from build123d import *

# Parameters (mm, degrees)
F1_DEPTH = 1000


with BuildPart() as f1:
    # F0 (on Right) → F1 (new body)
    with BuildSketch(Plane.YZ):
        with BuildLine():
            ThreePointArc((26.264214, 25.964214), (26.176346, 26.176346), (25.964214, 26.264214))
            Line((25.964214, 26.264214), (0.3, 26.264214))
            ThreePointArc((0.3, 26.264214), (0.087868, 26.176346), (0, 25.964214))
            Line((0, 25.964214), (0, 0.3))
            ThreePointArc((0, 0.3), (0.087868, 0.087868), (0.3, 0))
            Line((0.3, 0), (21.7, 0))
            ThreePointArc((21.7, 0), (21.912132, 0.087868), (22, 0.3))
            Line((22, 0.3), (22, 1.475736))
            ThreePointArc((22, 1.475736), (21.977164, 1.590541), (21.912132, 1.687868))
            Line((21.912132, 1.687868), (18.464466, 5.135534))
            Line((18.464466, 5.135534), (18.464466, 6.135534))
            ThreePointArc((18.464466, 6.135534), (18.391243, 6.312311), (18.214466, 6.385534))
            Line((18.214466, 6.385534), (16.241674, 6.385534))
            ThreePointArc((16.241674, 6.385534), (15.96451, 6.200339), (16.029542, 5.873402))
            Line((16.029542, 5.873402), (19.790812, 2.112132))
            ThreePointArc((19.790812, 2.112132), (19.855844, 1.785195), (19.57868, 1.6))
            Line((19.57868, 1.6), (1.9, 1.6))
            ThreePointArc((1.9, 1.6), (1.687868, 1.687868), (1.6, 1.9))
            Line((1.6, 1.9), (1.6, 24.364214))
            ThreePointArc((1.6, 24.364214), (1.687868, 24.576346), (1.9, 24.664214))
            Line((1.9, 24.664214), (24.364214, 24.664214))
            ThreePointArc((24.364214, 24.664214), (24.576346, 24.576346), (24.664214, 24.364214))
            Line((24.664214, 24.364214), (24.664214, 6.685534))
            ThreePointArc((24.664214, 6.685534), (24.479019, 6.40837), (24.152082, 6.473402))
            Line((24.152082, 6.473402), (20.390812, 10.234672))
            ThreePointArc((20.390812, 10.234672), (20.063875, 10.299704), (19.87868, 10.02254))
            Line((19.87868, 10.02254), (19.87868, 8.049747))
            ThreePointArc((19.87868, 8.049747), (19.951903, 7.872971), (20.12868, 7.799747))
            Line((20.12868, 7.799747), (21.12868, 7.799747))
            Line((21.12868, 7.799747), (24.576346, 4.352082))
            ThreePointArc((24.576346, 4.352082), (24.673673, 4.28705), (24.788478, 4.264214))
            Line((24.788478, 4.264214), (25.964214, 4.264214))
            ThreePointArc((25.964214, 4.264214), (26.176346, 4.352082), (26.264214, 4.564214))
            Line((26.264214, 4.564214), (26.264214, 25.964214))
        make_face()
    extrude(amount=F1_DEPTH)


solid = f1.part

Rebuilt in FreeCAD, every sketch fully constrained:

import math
import FreeCAD as App
import Part
import Sketcher

V = App.Vector
Q = App.Units.Quantity

doc = App.newDocument("Part")
body = doc.addObject("PartDesign::Body", "Body")

sketch1 = body.newObject("Sketcher::SketchObject", "Sketch")
sketch1.AttachmentSupport = (doc.getObject("YZ_Plane"), [""])
sketch1.MapMode = "FlatFace"
sketch1.addGeometry(Part.ArcOfCircle(Part.Circle(V(25.96, 25.96, 0), V(0, 0, 1), 0.3), math.radians(0), math.radians(90)), False)
sketch1.addGeometry(Part.LineSegment(V(25.96, 26.26, 0), V(0.3, 26.26, 0)), False)
sketch1.addGeometry(Part.ArcOfCircle(Part.Circle(V(0.3, 25.96, 0), V(0, 0, 1), 0.3), math.radians(90), math.radians(180)), False)
sketch1.addGeometry(Part.LineSegment(V(0, 25.96, 0), V(0, 0.3, 0)), False)
sketch1.addGeometry(Part.ArcOfCircle(Part.Circle(V(0.3, 0.3, 0), V(0, 0, 1), 0.3), math.radians(-180), math.radians(-90)), False)
sketch1.addGeometry(Part.LineSegment(V(0.3, 0, 0), V(21.7, 0, 0)), False)
sketch1.addGeometry(Part.ArcOfCircle(Part.Circle(V(21.7, 0.3, 0), V(0, 0, 1), 0.3), math.radians(-90), math.radians(0)), False)
sketch1.addGeometry(Part.LineSegment(V(22, 0.3, 0), V(22, 1.48, 0)), False)
sketch1.addGeometry(Part.ArcOfCircle(Part.Circle(V(21.7, 1.48, 0), V(0, 0, 1), 0.3), math.radians(0), math.radians(45)), False)
sketch1.addGeometry(Part.LineSegment(V(21.91, 1.69, 0), V(18.46, 5.14, 0)), False)
sketch1.addGeometry(Part.LineSegment(V(18.46, 5.14, 0), V(18.46, 6.14, 0)), False)
sketch1.addGeometry(Part.ArcOfCircle(Part.Circle(V(18.21, 6.14, 0), V(0, 0, 1), 0.25), math.radians(0), math.radians(90)), False)
sketch1.addGeometry(Part.LineSegment(V(18.21, 6.39, 0), V(16.24, 6.39, 0)), False)
sketch1.addGeometry(Part.ArcOfCircle(Part.Circle(V(16.24, 6.09, 0), V(0, 0, 1), 0.3), math.radians(90), math.radians(225)), False)
sketch1.addGeometry(Part.LineSegment(V(16.03, 5.87, 0), V(19.79, 2.11, 0)), False)
sketch1.addGeometry(Part.ArcOfCircle(Part.Circle(V(19.58, 1.9, 0), V(0, 0, 1), 0.3), math.radians(-90), math.radians(45)), False)
sketch1.addGeometry(Part.LineSegment(V(19.58, 1.6, 0), V(1.9, 1.6, 0)), False)
sketch1.addGeometry(Part.ArcOfCircle(Part.Circle(V(1.9, 1.9, 0), V(0, 0, 1), 0.3), math.radians(-180), math.radians(-90)), False)
sketch1.addGeometry(Part.LineSegment(V(1.6, 1.9, 0), V(1.6, 24.36, 0)), False)
sketch1.addGeometry(Part.ArcOfCircle(Part.Circle(V(1.9, 24.36, 0), V(0, 0, 1), 0.3), math.radians(90), math.radians(180)), False)
sketch1.addGeometry(Part.LineSegment(V(1.9, 24.66, 0), V(24.36, 24.66, 0)), False)
sketch1.addGeometry(Part.ArcOfCircle(Part.Circle(V(24.36, 24.36, 0), V(0, 0, 1), 0.3), math.radians(0), math.radians(90)), False)
sketch1.addGeometry(Part.LineSegment(V(24.66, 24.36, 0), V(24.66, 6.69, 0)), False)
sketch1.addGeometry(Part.ArcOfCircle(Part.Circle(V(24.36, 6.69, 0), V(0, 0, 1), 0.3), math.radians(-135), math.radians(0)), False)
sketch1.addGeometry(Part.LineSegment(V(24.15, 6.47, 0), V(20.39, 10.23, 0)), False)
sketch1.addGeometry(Part.ArcOfCircle(Part.Circle(V(20.18, 10.02, 0), V(0, 0, 1), 0.3), math.radians(45), math.radians(180)), False)
sketch1.addGeometry(Part.LineSegment(V(19.88, 10.02, 0), V(19.88, 8.05, 0)), False)
sketch1.addGeometry(Part.ArcOfCircle(Part.Circle(V(20.13, 8.05, 0), V(0, 0, 1), 0.25), math.radians(-180), math.radians(-90)), False)
sketch1.addGeometry(Part.LineSegment(V(20.13, 7.8, 0), V(21.13, 7.8, 0)), False)
sketch1.addGeometry(Part.LineSegment(V(21.13, 7.8, 0), V(24.58, 4.35, 0)), False)
sketch1.addGeometry(Part.ArcOfCircle(Part.Circle(V(24.79, 4.56, 0), V(0, 0, 1), 0.3), math.radians(-135), math.radians(-90)), False)
sketch1.addGeometry(Part.LineSegment(V(24.79, 4.26, 0), V(25.96, 4.26, 0)), False)
sketch1.addGeometry(Part.ArcOfCircle(Part.Circle(V(25.96, 4.56, 0), V(0, 0, 1), 0.3), math.radians(-90), math.radians(0)), False)
sketch1.addGeometry(Part.LineSegment(V(26.26, 4.56, 0), V(26.26, 25.96, 0)), False)
sketch1.addConstraint(Sketcher.Constraint("Tangent", 0, 2, 1, 1))
sketch1.addConstraint(Sketcher.Constraint("Tangent", 1, 2, 2, 1))
sketch1.addConstraint(Sketcher.Constraint("Tangent", 2, 2, 3, 1))
sketch1.addConstraint(Sketcher.Constraint("Tangent", 3, 2, 4, 1))
sketch1.addConstraint(Sketcher.Constraint("Tangent", 4, 2, 5, 1))
sketch1.addConstraint(Sketcher.Constraint("Tangent", 5, 2, 6, 1))
sketch1.addConstraint(Sketcher.Constraint("Tangent", 6, 2, 7, 1))
sketch1.addConstraint(Sketcher.Constraint("Coincident", 7, 2, 8, 1))
sketch1.addConstraint(Sketcher.Constraint("Coincident", 8, 2, 9, 1))
sketch1.addConstraint(Sketcher.Constraint("Coincident", 9, 2, 10, 1))
sketch1.addConstraint(Sketcher.Constraint("Coincident", 10, 2, 11, 1))
sketch1.addConstraint(Sketcher.Constraint("Coincident", 11, 2, 12, 1))
sketch1.addConstraint(Sketcher.Constraint("Tangent", 12, 2, 13, 1))
sketch1.addConstraint(Sketcher.Constraint("Tangent", 13, 2, 14, 1))
sketch1.addConstraint(Sketcher.Constraint("Tangent", 14, 2, 15, 2))
sketch1.addConstraint(Sketcher.Constraint("Tangent", 15, 1, 16, 1))
sketch1.addConstraint(Sketcher.Constraint("Tangent", 16, 2, 17, 2))
sketch1.addConstraint(Sketcher.Constraint("Tangent", 17, 1, 18, 1))
sketch1.addConstraint(Sketcher.Constraint("Tangent", 18, 2, 19, 2))
sketch1.addConstraint(Sketcher.Constraint("Tangent", 19, 1, 20, 1))
sketch1.addConstraint(Sketcher.Constraint("Tangent", 20, 2, 21, 2))
sketch1.addConstraint(Sketcher.Constraint("Tangent", 21, 1, 22, 1))
sketch1.addConstraint(Sketcher.Constraint("Tangent", 22, 2, 23, 2))
sketch1.addConstraint(Sketcher.Constraint("Tangent", 23, 1, 24, 1))
sketch1.addConstraint(Sketcher.Constraint("Tangent", 24, 2, 25, 1))
sketch1.addConstraint(Sketcher.Constraint("Tangent", 25, 2, 26, 1))
sketch1.addConstraint(Sketcher.Constraint("Coincident", 26, 2, 27, 1))
sketch1.addConstraint(Sketcher.Constraint("Coincident", 27, 2, 28, 1))
sketch1.addConstraint(Sketcher.Constraint("Coincident", 28, 2, 29, 1))
sketch1.addConstraint(Sketcher.Constraint("Coincident", 29, 2, 30, 1))
sketch1.addConstraint(Sketcher.Constraint("Coincident", 30, 2, 31, 1))
sketch1.addConstraint(Sketcher.Constraint("Tangent", 31, 2, 32, 1))
sketch1.addConstraint(Sketcher.Constraint("Tangent", 32, 2, 33, 1))
sketch1.addConstraint(Sketcher.Constraint("Tangent", 33, 2, 0, 1))
sketch1.addConstraint(Sketcher.Constraint("Horizontal", 1))
sketch1.addConstraint(Sketcher.Constraint("Vertical", 3))
sketch1.addConstraint(Sketcher.Constraint("Horizontal", 5))
sketch1.addConstraint(Sketcher.Constraint("Vertical", 7))
sketch1.addConstraint(Sketcher.Constraint("Vertical", 10))
sketch1.addConstraint(Sketcher.Constraint("Horizontal", 12))
sketch1.addConstraint(Sketcher.Constraint("Horizontal", 16))
sketch1.addConstraint(Sketcher.Constraint("Vertical", 18))
sketch1.addConstraint(Sketcher.Constraint("Horizontal", 20))
sketch1.addConstraint(Sketcher.Constraint("Vertical", 22))
sketch1.addConstraint(Sketcher.Constraint("Vertical", 26))
sketch1.addConstraint(Sketcher.Constraint("Horizontal", 28))
sketch1.addConstraint(Sketcher.Constraint("Horizontal", 31))
sketch1.addConstraint(Sketcher.Constraint("Vertical", 33))
sketch1.addConstraint(Sketcher.Constraint("Equal", 0, 2))
sketch1.addConstraint(Sketcher.Constraint("Equal", 2, 4))
sketch1.addConstraint(Sketcher.Constraint("Equal", 4, 6))
sketch1.addConstraint(Sketcher.Constraint("Equal", 6, 8))
sketch1.addConstraint(Sketcher.Constraint("Equal", 8, 13))
sketch1.addConstraint(Sketcher.Constraint("Equal", 13, 15))
sketch1.addConstraint(Sketcher.Constraint("Equal", 15, 17))
sketch1.addConstraint(Sketcher.Constraint("Equal", 17, 19))
sketch1.addConstraint(Sketcher.Constraint("Equal", 19, 21))
sketch1.addConstraint(Sketcher.Constraint("Equal", 21, 23))
sketch1.addConstraint(Sketcher.Constraint("Equal", 23, 25))
sketch1.addConstraint(Sketcher.Constraint("Equal", 11, 27))
sketch1.addConstraint(Sketcher.Constraint("Equal", 25, 30))
sketch1.addConstraint(Sketcher.Constraint("Equal", 30, 32))
sketch1.addConstraint(Sketcher.Constraint("PointOnObject", 2, 2, -2))
sketch1.addConstraint(Sketcher.Constraint("PointOnObject", 4, 2, -1))
sketch1.addConstraint(Sketcher.Constraint("Parallel", 9, 14))
sketch1.addConstraint(Sketcher.Constraint("Parallel", 14, 24))
sketch1.addConstraint(Sketcher.Constraint("Parallel", 24, 29))
sketch1.addConstraint(Sketcher.Constraint("Horizontal", 8, 3, 7, 2))
sketch1.addConstraint(Sketcher.Constraint("Horizontal", 11, 3, 10, 2))
sketch1.addConstraint(Sketcher.Constraint("Horizontal", 27, 3, 26, 2))
sketch1.addConstraint(Sketcher.Constraint("Equal", 1, 3))
sketch1.addConstraint(Sketcher.Constraint("Equal", 31, 7))
sketch1.addConstraint(Sketcher.Constraint("Equal", 28, 10))
sketch1.addConstraint(Sketcher.Constraint("Equal", 20, 18))
sketch1.addConstraint(Sketcher.Constraint("Equal", 16, 22))
sketch1.addConstraint(Sketcher.Constraint("Equal", 12, 26))
sketch1.addConstraint(Sketcher.Constraint("Equal", 5, 33))
sketch1.addConstraint(Sketcher.Constraint("Equal", 14, 24))
sketch1.addConstraint(Sketcher.Constraint("Equal", 9, 29))
sketch1.addConstraint(Sketcher.Constraint("Radius", 0, 0.3))
sketch1.addConstraint(Sketcher.Constraint("DistanceX", 28, 1, 28, 2, 1.0))
sketch1.addConstraint(Sketcher.Constraint("Angle", 9, Q("135 deg")))
sketch1.addConstraint(Sketcher.Constraint("Radius", 11, 0.249999))
sketch1.addConstraint(Sketcher.Constraint("DistanceX", 5, 1, 5, 2, 21.4))
sketch1.addConstraint(Sketcher.Constraint("DistanceX", 27, 3, 28, 2, 0.999999))
sketch1.addConstraint(Sketcher.Constraint("DistanceY", -1, 1, 15, 3, 1.9))
sketch1.addConstraint(Sketcher.Constraint("DistanceX", -1, 1, 17, 3, 1.9))
sketch1.addConstraint(Sketcher.Constraint("DistanceY", 19, 3, 2, 3, 1.6))
sketch1.addConstraint(Sketcher.Constraint("DistanceY", 13, 3, 23, 3, 0.6))
sketch1.addConstraint(Sketcher.Constraint("DistanceX", 11, 2, 10, 2, 0.25))
sketch1.addConstraint(Sketcher.Constraint("DistanceX", 16, 2, 16, 1, 17.67868))
sketch1.addConstraint(Sketcher.Constraint("DistanceY", 8, 3, 11, 3, 4.659798))
sketch1.addConstraint(Sketcher.Constraint("DistanceX", 27, 3, 23, 1, 4.023401))
sketch1.addConstraint(Sketcher.Constraint("DistanceY", -1, 1, 8, 2, 1.687868))
pad1 = body.newObject("PartDesign::Pad", "Pad")
pad1.Profile = sketch1
pad1.Length = 1000

doc.recompute()
